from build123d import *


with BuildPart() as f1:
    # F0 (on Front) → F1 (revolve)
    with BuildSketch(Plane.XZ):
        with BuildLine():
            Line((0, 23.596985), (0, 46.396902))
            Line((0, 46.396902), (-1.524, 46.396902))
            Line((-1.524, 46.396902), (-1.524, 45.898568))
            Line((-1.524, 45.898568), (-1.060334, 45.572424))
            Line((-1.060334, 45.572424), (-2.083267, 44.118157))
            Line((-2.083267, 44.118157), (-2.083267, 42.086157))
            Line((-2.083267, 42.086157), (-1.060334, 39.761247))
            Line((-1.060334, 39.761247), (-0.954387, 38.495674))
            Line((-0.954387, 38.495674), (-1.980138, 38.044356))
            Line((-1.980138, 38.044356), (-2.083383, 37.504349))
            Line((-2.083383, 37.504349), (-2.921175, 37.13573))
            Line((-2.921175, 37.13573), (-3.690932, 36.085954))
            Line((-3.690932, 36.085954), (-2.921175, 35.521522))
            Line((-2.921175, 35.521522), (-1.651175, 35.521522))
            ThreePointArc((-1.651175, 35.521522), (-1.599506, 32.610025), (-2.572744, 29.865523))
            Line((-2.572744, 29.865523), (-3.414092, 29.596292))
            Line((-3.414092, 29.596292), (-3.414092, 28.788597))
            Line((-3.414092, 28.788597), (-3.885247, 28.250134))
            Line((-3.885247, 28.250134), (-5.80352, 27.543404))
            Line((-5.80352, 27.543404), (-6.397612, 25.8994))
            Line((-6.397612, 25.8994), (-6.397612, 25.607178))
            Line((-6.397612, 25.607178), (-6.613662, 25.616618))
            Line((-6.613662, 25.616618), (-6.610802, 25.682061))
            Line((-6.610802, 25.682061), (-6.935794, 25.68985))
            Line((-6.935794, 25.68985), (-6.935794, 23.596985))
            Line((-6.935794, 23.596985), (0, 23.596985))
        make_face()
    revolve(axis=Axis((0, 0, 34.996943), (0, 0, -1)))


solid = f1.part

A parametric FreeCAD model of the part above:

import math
import FreeCAD as App
import Part
import Sketcher

V = App.Vector
Q = App.Units.Quantity

doc = App.newDocument("Part")
params = doc.addObject("Spreadsheet::Sheet", "Params")
for row, (alias, value) in enumerate([
    ("sketch1_length", "0.1 in"),
    ("sketch1_width", "0.06 in"),
    ("sketch1_width2", "0.05 in"),
    ("sketch1_height", "0.08 in"),
    ("sketch1_length2", "0.07 in"),
    ("revolution_angle", "360 deg"),
], start=1):
    params.set(f"A{row}", alias)
    params.set(f"B{row}", "=" + value)
    params.setAlias(f"B{row}", alias)

body = doc.addObject("PartDesign::Body", "Body")

# Sketch on XZ plane
sketch1 = body.newObject("Sketcher::SketchObject", "Sketch")
sketch1.AttachmentSupport = (doc.getObject("XZ_Plane"), [""])
sketch1.MapMode = "FlatFace"
sketch1.addGeometry(Part.LineSegment(V(0, 23.596985, 0), V(0, 46.396902, 0)), False)
sketch1.addGeometry(Part.LineSegment(V(0, 46.396902, 0), V(-1.524, 46.396902, 0)), False)
sketch1.addGeometry(Part.LineSegment(V(-1.524, 46.396902, 0), V(-1.524, 45.898568, 0)), False)
sketch1.addGeometry(Part.LineSegment(V(-1.524, 45.898568, 0), V(-1.060334, 45.572424, 0)), False)
sketch1.addGeometry(Part.LineSegment(V(-1.060334, 45.572424, 0), V(-2.083267, 44.118157, 0)), False)
sketch1.addGeometry(Part.LineSegment(V(-2.083267, 44.118157, 0), V(-2.083267, 42.086157, 0)), False)
sketch1.addGeometry(Part.LineSegment(V(-2.083267, 42.086157, 0), V(-1.060334, 39.761247, 0)), False)
sketch1.addGeometry(Part.LineSegment(V(-1.060334, 39.761247, 0), V(-0.954387, 38.495674, 0)), False)
sketch1.addGeometry(Part.LineSegment(V(-0.954387, 38.495674, 0), V(-1.980138, 38.044356, 0)), False)
sketch1.addGeometry(Part.LineSegment(V(-1.980138, 38.044356, 0), V(-2.083383, 37.504349, 0)), False)
sketch1.addGeometry(Part.LineSegment(V(-2.083383, 37.504349, 0), V(-2.921175, 37.13573, 0)), False)
sketch1.addGeometry(Part.LineSegment(V(-2.921175, 37.13573, 0), V(-3.690932, 36.085954, 0)), False)
sketch1.addGeometry(Part.LineSegment(V(-3.690932, 36.085954, 0), V(-2.921175, 35.521522, 0)), False)
sketch1.addGeometry(Part.LineSegment(V(-2.921175, 35.521522, 0), V(-1.651175, 35.521522, 0)), False)
sketch1.addGeometry(Part.ArcOfCircle(Part.Circle(V(-9.658959, 33.923205, 0), V(0, 0, 1), 8.165734), math.radians(-29.796153), math.radians(11.287645)), False)
sketch1.addGeometry(Part.LineSegment(V(-2.572744, 29.865523, 0), V(-3.414092, 29.596292, 0)), False)
sketch1.addGeometry(Part.LineSegment(V(-3.414092, 29.596292, 0), V(-3.414092, 28.788597, 0)), False)
sketch1.addGeometry(Part.LineSegment(V(-3.414092, 28.788597, 0), V(-3.885247, 28.250134, 0)), False)
sketch1.addGeometry(Part.LineSegment(V(-3.885247, 28.250134, 0), V(-5.80352, 27.543404, 0)), False)
sketch1.addGeometry(Part.LineSegment(V(-5.80352, 27.543404, 0), V(-6.397612, 25.8994, 0)), False)
sketch1.addGeometry(Part.LineSegment(V(-6.397612, 25.8994, 0), V(-6.397612, 25.607178, 0)), False)
sketch1.addGeometry(Part.LineSegment(V(-6.397612, 25.607178, 0), V(-6.613662, 25.616618, 0)), False)
sketch1.addGeometry(Part.LineSegment(V(-6.613662, 25.616618, 0), V(-6.610802, 25.682061, 0)), False)
sketch1.addGeometry(Part.LineSegment(V(-6.610802, 25.682061, 0), V(-6.935794, 25.68985, 0)), False)
sketch1.addGeometry(Part.LineSegment(V(-6.935794, 25.68985, 0), V(-6.935794, 23.596985, 0)), False)
sketch1.addGeometry(Part.LineSegment(V(-6.935794, 23.596985, 0), V(0, 23.596985, 0)), False)
sketch1.addConstraint(Sketcher.Constraint("Coincident", 0, 2, 1, 1))
sketch1.addConstraint(Sketcher.Constraint("Coincident", 1, 2, 2, 1))
sketch1.addConstraint(Sketcher.Constraint("Coincident", 2, 2, 3, 1))
sketch1.addConstraint(Sketcher.Constraint("Coincident", 3, 2, 4, 1))
sketch1.addConstraint(Sketcher.Constraint("Coincident", 4, 2, 5, 1))
sketch1.addConstraint(Sketcher.Constraint("Coincident", 5, 2, 6, 1))
sketch1.addConstraint(Sketcher.Constraint("Coincident", 6, 2, 7, 1))
sketch1.addConstraint(Sketcher.Constraint("Coincident", 7, 2, 8, 1))
sketch1.addConstraint(Sketcher.Constraint("Coincident", 8, 2, 9, 1))
sketch1.addConstraint(Sketcher.Constraint("Coincident", 9, 2, 10, 1))
sketch1.addConstraint(Sketcher.Constraint("Coincident", 10, 2, 11, 1))
sketch1.addConstraint(Sketcher.Constraint("Coincident", 11, 2, 12, 1))
sketch1.addConstraint(Sketcher.Constraint("Coincident", 12, 2, 13, 1))
sketch1.addConstraint(Sketcher.Constraint("Coincident", 13, 2, 14, 2))
sketch1.addConstraint(Sketcher.Constraint("Coincident", 14, 1, 15, 1))
sketch1.addConstraint(Sketcher.Constraint("Coincident", 15, 2, 16, 1))
sketch1.addConstraint(Sketcher.Constraint("Coincident", 16, 2, 17, 1))
sketch1.addConstraint(Sketcher.Constraint("Coincident", 17, 2, 18, 1))
sketch1.addConstraint(Sketcher.Constraint("Coincident", 18, 2, 19, 1))
sketch1.addConstraint(Sketcher.Constraint("Coincident", 19, 2, 20, 1))
sketch1.addConstraint(Sketcher.Constraint("Coincident", 20, 2, 21, 1))
sketch1.addConstraint(Sketcher.Constraint("Coincident", 21, 2, 22, 1))
sketch1.addConstraint(Sketcher.Constraint("Coincident", 22, 2, 23, 1))
sketch1.addConstraint(Sketcher.Constraint("Coincident", 23, 2, 24, 1))
sketch1.addConstraint(Sketcher.Constraint("Coincident", 24, 2, 25, 1))
sketch1.addConstraint(Sketcher.Constraint("Coincident", 25, 2, 0, 1))
sketch1.addConstraint(Sketcher.Constraint("Vertical", 0))
sketch1.addConstraint(Sketcher.Constraint("Horizontal", 1))
sketch1.addConstraint(Sketcher.Constraint("Vertical", 2))
sketch1.addConstraint(Sketcher.Constraint("Vertical", 5))
sketch1.addConstraint(Sketcher.Constraint("Horizontal", 13))
sketch1.addConstraint(Sketcher.Constraint("Vertical", 16))
sketch1.addConstraint(Sketcher.Constraint("Vertical", 20))
sketch1.addConstraint(Sketcher.Constraint("Vertical", 24))
sketch1.addConstraint(Sketcher.Constraint("Horizontal", 25))
sketch1.addConstraint(Sketcher.Constraint("PointOnObject", 0, 2, -2))
sketch1.addConstraint(Sketcher.Constraint("Distance", 6, Q("0.1 in")))
sketch1.addConstraint(Sketcher.Constraint("DistanceX", 1, 2, 1, 1, Q("0.06 in")))
sketch1.addConstraint(Sketcher.Constraint("DistanceX", 13, 1, 13, 2, Q("0.05 in")))
sketch1.addConstraint(Sketcher.Constraint("DistanceY", 5, 2, 5, 1, Q("0.08 in")))
sketch1.addConstraint(Sketcher.Constraint("Distance", 4, Q("0.07 in")))
sketch1.addConstraint(Sketcher.Constraint("Distance", 7, Q("0.05 in")))
sketch1.addConstraint(Sketcher.Constraint("DistanceX", 10, 2, 13, 2, Q("0.05 in")))
sketch1.addConstraint(Sketcher.Constraint("Radius", 14, 8.165734))
sketch1.addConstraint(Sketcher.Constraint("Distance", 10, 0.915301))
sketch1.addConstraint(Sketcher.Constraint("DistanceY", 20, 2, 20, 1, 0.292222))
sketch1.addConstraint(Sketcher.Constraint("DistanceY", -1, 1, 0, 2, 46.396902))
sketch1.addConstraint(Sketcher.Constraint("DistanceY", -1, 1, 19, 2, 25.8994))
sketch1.addConstraint(Sketcher.Constraint("DistanceX", 22, 2, -1, 1, 6.610802))
sketch1.addConstraint(Sketcher.Constraint("DistanceY", 8, 2, 5, 2, 4.041801))
sketch1.addConstraint(Sketcher.Constraint("DistanceY", 11, 2, 8, 2, 1.958402))
sketch1.addConstraint(Sketcher.Constraint("DistanceX", 11, 2, 6, 2, 2.630598))
sketch1.addConstraint(Sketcher.Constraint("DistanceY", 14, 1, 12, 2, 5.655999))
sketch1.addConstraint(Sketcher.Constraint("DistanceY", 18, 2, 14, 3, 6.379801))
sketch1.addConstraint(Sketcher.Constraint("Distance", 8, 1.120648))
sketch1.addConstraint(Sketcher.Constraint("Distance", 9, 0.549788))
sketch1.addConstraint(Sketcher.Constraint("Distance", 11, 1.301751))
sketch1.addConstraint(Sketcher.Constraint("Distance", 12, 0.95452))
sketch1.addConstraint(Sketcher.Constraint("Distance", 18, 2.044319))
sketch1.addConstraint(Sketcher.Constraint("DistanceX", 25, 1, 25, 2, 6.935794))
sketch1.addConstraint(Sketcher.Constraint("DistanceY", 0, 1, 0, 2, 22.799917))
sketch1.addConstraint(Sketcher.Constraint("DistanceY", 2, 2, 2, 1, 0.498334))
sketch1.addConstraint(Sketcher.Constraint("DistanceY", 16, 2, 16, 1, 0.807695))
sketch1.addConstraint(Sketcher.Constraint("DistanceY", 24, 2, 24, 1, 2.092865))
sketch1.addConstraint(Sketcher.Constraint("DistanceX", 14, 3, -1, 1, 9.658959))
sketch1.addConstraint(Sketcher.Constraint("DistanceY", -1, 1, 9, 2, 37.504349))
sketch1.addConstraint(Sketcher.Constraint("DistanceY", -1, 1, 10, 2, 37.13573))
sketch1.addConstraint(Sketcher.Constraint("DistanceY", -1, 1, 12, 2, 35.521522))
sketch1.addConstraint(Sketcher.Constraint("DistanceY", -1, 1, 15, 2, 29.596292))
sketch1.addConstraint(Sketcher.Constraint("DistanceX", 18, 2, -1, 1, 5.80352))
sketch1.addConstraint(Sketcher.Constraint("DistanceX", 19, 2, -1, 1, 6.397612))
sketch1.addConstraint(Sketcher.Constraint("DistanceX", 21, 2, -1, 1, 6.613662))
sketch1.addConstraint(Sketcher.Constraint("DistanceY", -1, 1, 22, 2, 25.682061))
sketch1.addConstraint(Sketcher.Constraint("DistanceY", 14, 3, 3, 2, 11.649219))
sketch1.addConstraint(Sketcher.Constraint("DistanceX", 14, 3, 4, 2, 7.575692))
sketch1.addConstraint(Sketcher.Constraint("DistanceY", 6, 2, 5, 2, 2.32491))
sketch1.addConstraint(Sketcher.Constraint("DistanceX", 15, 2, 14, 1, 0.841348))
sketch1.addConstraint(Sketcher.Constraint("DistanceY", 17, 2, 14, 1, 1.615389))
sketch1.addConstraint(Sketcher.Constraint("DistanceY", 20, 2, 21, 2, 0.00944))
sketch1.setExpression("Constraints[36]", "Params.sketch1_length")
sketch1.setExpression("Constraints[37]", "Params.sketch1_width")
sketch1.setExpression("Constraints[38]", "Params.sketch1_width2")
sketch1.setExpression("Constraints[39]", "Params.sketch1_height")
sketch1.setExpression("Constraints[40]", "Params.sketch1_length2")
revolution = body.newObject("PartDesign::Revolution", "Revolution")
revolution.Profile = sketch1
revolution.ReferenceAxis = (sketch1, ["V_Axis"])
revolution.setExpression("Angle", "Params.revolution_angle")

doc.recompute()
